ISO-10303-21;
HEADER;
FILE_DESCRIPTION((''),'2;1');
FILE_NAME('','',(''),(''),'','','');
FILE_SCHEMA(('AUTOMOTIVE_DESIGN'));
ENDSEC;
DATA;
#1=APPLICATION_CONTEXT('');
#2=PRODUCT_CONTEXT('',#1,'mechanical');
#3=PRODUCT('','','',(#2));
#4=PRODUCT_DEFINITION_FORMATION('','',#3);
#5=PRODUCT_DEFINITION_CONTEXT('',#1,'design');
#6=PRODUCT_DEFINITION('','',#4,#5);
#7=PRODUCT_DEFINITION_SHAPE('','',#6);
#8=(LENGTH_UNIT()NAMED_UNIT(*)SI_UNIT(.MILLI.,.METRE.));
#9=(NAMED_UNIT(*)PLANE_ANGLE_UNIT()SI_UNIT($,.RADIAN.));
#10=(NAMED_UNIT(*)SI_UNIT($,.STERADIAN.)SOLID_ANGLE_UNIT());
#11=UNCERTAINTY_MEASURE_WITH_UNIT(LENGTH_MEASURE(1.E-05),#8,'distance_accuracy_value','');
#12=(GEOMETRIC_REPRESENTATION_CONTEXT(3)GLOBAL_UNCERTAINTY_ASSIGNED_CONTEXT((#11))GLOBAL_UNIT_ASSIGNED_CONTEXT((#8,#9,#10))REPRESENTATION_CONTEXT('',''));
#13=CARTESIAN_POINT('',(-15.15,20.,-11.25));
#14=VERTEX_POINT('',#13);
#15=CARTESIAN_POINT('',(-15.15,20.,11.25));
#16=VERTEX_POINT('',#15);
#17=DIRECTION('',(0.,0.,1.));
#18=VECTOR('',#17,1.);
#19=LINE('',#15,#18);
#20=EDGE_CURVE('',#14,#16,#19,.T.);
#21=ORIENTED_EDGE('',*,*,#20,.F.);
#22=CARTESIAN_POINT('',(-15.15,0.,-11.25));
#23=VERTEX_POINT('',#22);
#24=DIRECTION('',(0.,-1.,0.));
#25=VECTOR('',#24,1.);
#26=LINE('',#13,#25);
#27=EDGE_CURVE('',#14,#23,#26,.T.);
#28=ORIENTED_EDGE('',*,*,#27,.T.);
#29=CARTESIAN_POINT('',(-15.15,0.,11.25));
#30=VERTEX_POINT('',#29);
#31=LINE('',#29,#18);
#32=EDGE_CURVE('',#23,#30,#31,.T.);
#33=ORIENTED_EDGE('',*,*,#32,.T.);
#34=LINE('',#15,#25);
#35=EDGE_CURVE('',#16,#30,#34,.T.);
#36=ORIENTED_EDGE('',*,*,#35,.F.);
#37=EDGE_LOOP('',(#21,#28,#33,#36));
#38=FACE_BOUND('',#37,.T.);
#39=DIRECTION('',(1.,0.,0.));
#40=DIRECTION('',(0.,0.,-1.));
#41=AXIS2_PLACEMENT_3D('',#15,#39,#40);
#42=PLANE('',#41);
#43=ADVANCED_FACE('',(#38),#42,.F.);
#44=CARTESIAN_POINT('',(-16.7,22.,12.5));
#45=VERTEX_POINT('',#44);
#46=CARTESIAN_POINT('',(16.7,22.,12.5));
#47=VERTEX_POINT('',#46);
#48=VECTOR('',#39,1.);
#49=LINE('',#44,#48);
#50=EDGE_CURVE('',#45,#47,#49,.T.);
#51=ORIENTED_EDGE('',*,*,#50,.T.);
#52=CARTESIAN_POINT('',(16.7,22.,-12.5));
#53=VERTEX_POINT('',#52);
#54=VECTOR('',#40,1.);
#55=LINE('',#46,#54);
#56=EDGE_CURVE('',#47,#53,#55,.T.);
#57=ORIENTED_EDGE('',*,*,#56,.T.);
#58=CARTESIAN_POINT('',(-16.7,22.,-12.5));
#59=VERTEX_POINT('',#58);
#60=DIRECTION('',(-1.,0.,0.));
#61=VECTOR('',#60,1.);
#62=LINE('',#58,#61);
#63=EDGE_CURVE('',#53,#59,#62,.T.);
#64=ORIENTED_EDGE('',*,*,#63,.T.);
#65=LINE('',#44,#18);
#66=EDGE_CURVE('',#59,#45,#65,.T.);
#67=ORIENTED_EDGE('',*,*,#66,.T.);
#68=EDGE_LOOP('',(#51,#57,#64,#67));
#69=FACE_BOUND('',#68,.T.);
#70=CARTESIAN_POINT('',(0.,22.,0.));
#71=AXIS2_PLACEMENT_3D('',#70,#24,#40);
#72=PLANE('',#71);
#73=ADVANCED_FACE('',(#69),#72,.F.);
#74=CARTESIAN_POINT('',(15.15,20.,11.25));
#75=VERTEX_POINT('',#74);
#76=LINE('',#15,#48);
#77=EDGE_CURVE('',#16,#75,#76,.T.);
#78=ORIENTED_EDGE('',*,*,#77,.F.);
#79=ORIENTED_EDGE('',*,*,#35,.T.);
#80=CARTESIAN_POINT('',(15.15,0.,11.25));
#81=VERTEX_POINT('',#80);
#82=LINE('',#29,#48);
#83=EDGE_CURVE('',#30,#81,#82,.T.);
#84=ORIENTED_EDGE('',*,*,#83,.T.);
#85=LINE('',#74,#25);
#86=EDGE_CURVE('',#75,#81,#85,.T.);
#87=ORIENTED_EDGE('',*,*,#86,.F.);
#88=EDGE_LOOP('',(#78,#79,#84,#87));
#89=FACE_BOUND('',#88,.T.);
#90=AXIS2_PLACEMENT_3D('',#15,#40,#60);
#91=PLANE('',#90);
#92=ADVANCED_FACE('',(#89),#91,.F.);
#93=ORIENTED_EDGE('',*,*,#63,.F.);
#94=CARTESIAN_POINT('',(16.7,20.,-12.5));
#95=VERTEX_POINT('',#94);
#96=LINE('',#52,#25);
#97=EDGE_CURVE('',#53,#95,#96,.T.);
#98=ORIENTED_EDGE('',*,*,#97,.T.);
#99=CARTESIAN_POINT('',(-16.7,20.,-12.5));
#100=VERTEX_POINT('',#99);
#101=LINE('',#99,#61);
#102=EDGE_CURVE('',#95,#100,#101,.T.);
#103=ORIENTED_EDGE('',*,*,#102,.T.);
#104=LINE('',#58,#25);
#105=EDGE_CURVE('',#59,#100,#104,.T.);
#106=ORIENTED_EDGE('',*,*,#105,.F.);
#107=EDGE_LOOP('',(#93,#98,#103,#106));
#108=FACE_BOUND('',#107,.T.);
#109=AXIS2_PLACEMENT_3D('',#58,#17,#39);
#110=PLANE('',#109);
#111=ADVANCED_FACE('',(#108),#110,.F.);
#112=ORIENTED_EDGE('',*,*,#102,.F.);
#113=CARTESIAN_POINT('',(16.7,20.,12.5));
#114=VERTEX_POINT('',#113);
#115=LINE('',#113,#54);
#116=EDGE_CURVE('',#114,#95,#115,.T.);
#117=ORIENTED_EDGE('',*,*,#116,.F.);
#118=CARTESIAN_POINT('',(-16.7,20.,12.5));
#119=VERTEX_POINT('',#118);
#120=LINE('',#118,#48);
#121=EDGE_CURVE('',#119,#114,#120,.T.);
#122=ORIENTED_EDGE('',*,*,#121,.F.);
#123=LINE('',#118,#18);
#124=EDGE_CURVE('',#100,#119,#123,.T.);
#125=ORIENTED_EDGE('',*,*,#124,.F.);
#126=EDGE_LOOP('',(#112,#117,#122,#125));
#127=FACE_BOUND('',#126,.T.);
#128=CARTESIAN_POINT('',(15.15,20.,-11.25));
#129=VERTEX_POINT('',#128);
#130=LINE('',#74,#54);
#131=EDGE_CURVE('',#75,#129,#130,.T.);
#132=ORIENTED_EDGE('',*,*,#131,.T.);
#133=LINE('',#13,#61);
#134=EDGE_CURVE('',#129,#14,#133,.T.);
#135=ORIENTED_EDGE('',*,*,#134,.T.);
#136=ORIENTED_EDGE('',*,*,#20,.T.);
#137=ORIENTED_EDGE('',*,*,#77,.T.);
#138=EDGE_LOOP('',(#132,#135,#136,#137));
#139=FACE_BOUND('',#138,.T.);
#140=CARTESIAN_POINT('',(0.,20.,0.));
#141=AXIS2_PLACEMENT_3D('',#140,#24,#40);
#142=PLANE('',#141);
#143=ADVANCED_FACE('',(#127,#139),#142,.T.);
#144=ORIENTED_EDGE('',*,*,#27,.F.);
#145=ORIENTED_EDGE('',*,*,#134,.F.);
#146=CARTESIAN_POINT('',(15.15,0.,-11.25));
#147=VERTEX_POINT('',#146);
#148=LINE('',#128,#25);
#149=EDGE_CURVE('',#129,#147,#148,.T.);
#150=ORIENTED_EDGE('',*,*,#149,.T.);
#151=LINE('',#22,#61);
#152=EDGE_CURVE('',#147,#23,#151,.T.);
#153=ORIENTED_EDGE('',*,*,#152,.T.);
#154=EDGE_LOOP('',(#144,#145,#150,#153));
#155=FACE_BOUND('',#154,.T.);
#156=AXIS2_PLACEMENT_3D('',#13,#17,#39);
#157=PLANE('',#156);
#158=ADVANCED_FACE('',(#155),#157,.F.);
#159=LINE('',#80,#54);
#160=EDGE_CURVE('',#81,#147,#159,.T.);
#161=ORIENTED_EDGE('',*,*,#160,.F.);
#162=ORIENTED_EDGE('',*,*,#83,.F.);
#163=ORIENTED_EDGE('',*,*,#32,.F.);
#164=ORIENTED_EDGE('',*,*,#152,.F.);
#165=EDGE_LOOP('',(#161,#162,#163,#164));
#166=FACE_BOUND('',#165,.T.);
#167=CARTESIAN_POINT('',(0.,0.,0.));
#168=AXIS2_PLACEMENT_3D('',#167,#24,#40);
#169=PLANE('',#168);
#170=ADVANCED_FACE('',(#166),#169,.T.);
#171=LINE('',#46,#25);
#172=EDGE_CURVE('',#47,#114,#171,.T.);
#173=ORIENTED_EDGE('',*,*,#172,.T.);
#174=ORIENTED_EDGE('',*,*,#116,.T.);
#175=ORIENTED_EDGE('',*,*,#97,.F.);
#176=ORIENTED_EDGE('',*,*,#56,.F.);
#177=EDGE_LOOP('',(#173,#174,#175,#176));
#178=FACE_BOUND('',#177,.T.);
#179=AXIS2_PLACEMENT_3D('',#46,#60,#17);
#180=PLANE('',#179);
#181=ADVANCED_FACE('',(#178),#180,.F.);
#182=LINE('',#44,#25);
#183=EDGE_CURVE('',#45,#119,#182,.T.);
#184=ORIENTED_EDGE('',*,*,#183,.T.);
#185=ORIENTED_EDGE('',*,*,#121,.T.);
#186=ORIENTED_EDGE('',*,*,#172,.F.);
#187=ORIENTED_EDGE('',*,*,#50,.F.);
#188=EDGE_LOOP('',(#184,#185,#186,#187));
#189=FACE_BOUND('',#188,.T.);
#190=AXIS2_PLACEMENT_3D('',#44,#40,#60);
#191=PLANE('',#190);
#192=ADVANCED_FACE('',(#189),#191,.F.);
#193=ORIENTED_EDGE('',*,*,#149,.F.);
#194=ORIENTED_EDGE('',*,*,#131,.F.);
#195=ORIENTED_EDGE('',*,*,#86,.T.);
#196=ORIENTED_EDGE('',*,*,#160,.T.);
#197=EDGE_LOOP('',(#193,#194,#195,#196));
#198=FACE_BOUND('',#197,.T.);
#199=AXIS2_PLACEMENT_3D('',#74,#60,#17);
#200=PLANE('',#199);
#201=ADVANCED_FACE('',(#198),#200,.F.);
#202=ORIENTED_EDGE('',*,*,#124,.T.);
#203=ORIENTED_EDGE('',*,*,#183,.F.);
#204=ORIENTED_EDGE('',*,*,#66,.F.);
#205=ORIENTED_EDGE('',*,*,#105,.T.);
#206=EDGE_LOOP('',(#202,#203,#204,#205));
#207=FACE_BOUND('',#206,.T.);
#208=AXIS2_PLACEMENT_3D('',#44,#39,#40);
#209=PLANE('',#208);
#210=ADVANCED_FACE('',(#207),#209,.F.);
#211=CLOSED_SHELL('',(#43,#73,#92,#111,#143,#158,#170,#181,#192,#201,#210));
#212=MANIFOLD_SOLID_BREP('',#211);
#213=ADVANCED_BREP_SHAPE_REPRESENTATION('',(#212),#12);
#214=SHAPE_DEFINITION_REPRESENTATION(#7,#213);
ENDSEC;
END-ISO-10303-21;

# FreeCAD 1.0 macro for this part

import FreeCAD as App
import Part
import Sketcher
Q = App.Units.Quantity

doc = App.newDocument("Part")
body = doc.addObject("PartDesign::Body", "Body")

sketch1 = doc.addObject("Sketcher::SketchObject", "Sketch")
body.addObject(sketch1)
sketch1.AttachmentSupport = (doc.XZ_Plane, [""])
sketch1.MapMode = "FlatFace"
sketch1.addGeometry([
    Part.LineSegment(App.Vector(-15, -11, 0), App.Vector(-15, 11, 0)),
    Part.LineSegment(App.Vector(-15, 11, 0), App.Vector(15, 11, 0)),
    Part.LineSegment(App.Vector(15, 11, 0), App.Vector(15, -11, 0)),
    Part.LineSegment(App.Vector(15, -11, 0), App.Vector(-15, -11, 0)),
], False)
sketch1.addConstraint([
    Sketcher.Constraint("Coincident", 0, 2, 1, 1),
    Sketcher.Constraint("Coincident", 1, 2, 2, 1),
    Sketcher.Constraint("Coincident", 2, 2, 3, 1),
    Sketcher.Constraint("Coincident", 3, 2, 0, 1),
    Sketcher.Constraint("Vertical", 0),
    Sketcher.Constraint("Horizontal", 1),
    Sketcher.Constraint("Vertical", 2),
    Sketcher.Constraint("Horizontal", 3),
    Sketcher.Constraint("Symmetric", 0, 2, 2, 2, -1, 1),
    Sketcher.Constraint("DistanceX", 1, 1, 1, 2, Q("30.3 mm")),
    Sketcher.Constraint("DistanceY", 0, 1, 0, 2, Q("22.5 mm")),
])
pad1 = doc.addObject("PartDesign::Pad", "Pad")
body.addObject(pad1)
pad1.Profile = sketch1
pad1.Length = 20
pad1.Reversed = True

sketch2 = doc.addObject("Sketcher::SketchObject", "Sketch001")
body.addObject(sketch2)
sketch2.AttachmentSupport = (doc.XZ_Plane, [""])
sketch2.MapMode = "FlatFace"
sketch2.AttachmentOffset = App.Placement(App.Vector(0, 0, -20), App.Rotation())
sketch2.addGeometry([
    Part.LineSegment(App.Vector(-17, -12, 0), App.Vector(-17, 12, 0)),
    Part.LineSegment(App.Vector(-17, 12, 0), App.Vector(17, 12, 0)),
    Part.LineSegment(App.Vector(17, 12, 0), App.Vector(17, -12, 0)),
    Part.LineSegment(App.Vector(17, -12, 0), App.Vector(-17, -12, 0)),
], False)
sketch2.addConstraint([
    Sketcher.Constraint("Coincident", 0, 2, 1, 1),
    Sketcher.Constraint("Coincident", 1, 2, 2, 1),
    Sketcher.Constraint("Coincident", 2, 2, 3, 1),
    Sketcher.Constraint("Coincident", 3, 2, 0, 1),
    Sketcher.Constraint("Vertical", 0),
    Sketcher.Constraint("Horizontal", 1),
    Sketcher.Constraint("Vertical", 2),
    Sketcher.Constraint("Horizontal", 3),
    Sketcher.Constraint("Symmetric", 0, 2, 2, 2, -1, 1),
    Sketcher.Constraint("DistanceY", 0, 1, 0, 2, Q("25 mm")),
    Sketcher.Constraint("DistanceX", 1, 1, 1, 2, Q("33.4 mm")),
])
pad2 = doc.addObject("PartDesign::Pad", "Pad001")
body.addObject(pad2)
pad2.Profile = sketch2
pad2.Length = 2
pad2.Reversed = True

doc.recompute()
